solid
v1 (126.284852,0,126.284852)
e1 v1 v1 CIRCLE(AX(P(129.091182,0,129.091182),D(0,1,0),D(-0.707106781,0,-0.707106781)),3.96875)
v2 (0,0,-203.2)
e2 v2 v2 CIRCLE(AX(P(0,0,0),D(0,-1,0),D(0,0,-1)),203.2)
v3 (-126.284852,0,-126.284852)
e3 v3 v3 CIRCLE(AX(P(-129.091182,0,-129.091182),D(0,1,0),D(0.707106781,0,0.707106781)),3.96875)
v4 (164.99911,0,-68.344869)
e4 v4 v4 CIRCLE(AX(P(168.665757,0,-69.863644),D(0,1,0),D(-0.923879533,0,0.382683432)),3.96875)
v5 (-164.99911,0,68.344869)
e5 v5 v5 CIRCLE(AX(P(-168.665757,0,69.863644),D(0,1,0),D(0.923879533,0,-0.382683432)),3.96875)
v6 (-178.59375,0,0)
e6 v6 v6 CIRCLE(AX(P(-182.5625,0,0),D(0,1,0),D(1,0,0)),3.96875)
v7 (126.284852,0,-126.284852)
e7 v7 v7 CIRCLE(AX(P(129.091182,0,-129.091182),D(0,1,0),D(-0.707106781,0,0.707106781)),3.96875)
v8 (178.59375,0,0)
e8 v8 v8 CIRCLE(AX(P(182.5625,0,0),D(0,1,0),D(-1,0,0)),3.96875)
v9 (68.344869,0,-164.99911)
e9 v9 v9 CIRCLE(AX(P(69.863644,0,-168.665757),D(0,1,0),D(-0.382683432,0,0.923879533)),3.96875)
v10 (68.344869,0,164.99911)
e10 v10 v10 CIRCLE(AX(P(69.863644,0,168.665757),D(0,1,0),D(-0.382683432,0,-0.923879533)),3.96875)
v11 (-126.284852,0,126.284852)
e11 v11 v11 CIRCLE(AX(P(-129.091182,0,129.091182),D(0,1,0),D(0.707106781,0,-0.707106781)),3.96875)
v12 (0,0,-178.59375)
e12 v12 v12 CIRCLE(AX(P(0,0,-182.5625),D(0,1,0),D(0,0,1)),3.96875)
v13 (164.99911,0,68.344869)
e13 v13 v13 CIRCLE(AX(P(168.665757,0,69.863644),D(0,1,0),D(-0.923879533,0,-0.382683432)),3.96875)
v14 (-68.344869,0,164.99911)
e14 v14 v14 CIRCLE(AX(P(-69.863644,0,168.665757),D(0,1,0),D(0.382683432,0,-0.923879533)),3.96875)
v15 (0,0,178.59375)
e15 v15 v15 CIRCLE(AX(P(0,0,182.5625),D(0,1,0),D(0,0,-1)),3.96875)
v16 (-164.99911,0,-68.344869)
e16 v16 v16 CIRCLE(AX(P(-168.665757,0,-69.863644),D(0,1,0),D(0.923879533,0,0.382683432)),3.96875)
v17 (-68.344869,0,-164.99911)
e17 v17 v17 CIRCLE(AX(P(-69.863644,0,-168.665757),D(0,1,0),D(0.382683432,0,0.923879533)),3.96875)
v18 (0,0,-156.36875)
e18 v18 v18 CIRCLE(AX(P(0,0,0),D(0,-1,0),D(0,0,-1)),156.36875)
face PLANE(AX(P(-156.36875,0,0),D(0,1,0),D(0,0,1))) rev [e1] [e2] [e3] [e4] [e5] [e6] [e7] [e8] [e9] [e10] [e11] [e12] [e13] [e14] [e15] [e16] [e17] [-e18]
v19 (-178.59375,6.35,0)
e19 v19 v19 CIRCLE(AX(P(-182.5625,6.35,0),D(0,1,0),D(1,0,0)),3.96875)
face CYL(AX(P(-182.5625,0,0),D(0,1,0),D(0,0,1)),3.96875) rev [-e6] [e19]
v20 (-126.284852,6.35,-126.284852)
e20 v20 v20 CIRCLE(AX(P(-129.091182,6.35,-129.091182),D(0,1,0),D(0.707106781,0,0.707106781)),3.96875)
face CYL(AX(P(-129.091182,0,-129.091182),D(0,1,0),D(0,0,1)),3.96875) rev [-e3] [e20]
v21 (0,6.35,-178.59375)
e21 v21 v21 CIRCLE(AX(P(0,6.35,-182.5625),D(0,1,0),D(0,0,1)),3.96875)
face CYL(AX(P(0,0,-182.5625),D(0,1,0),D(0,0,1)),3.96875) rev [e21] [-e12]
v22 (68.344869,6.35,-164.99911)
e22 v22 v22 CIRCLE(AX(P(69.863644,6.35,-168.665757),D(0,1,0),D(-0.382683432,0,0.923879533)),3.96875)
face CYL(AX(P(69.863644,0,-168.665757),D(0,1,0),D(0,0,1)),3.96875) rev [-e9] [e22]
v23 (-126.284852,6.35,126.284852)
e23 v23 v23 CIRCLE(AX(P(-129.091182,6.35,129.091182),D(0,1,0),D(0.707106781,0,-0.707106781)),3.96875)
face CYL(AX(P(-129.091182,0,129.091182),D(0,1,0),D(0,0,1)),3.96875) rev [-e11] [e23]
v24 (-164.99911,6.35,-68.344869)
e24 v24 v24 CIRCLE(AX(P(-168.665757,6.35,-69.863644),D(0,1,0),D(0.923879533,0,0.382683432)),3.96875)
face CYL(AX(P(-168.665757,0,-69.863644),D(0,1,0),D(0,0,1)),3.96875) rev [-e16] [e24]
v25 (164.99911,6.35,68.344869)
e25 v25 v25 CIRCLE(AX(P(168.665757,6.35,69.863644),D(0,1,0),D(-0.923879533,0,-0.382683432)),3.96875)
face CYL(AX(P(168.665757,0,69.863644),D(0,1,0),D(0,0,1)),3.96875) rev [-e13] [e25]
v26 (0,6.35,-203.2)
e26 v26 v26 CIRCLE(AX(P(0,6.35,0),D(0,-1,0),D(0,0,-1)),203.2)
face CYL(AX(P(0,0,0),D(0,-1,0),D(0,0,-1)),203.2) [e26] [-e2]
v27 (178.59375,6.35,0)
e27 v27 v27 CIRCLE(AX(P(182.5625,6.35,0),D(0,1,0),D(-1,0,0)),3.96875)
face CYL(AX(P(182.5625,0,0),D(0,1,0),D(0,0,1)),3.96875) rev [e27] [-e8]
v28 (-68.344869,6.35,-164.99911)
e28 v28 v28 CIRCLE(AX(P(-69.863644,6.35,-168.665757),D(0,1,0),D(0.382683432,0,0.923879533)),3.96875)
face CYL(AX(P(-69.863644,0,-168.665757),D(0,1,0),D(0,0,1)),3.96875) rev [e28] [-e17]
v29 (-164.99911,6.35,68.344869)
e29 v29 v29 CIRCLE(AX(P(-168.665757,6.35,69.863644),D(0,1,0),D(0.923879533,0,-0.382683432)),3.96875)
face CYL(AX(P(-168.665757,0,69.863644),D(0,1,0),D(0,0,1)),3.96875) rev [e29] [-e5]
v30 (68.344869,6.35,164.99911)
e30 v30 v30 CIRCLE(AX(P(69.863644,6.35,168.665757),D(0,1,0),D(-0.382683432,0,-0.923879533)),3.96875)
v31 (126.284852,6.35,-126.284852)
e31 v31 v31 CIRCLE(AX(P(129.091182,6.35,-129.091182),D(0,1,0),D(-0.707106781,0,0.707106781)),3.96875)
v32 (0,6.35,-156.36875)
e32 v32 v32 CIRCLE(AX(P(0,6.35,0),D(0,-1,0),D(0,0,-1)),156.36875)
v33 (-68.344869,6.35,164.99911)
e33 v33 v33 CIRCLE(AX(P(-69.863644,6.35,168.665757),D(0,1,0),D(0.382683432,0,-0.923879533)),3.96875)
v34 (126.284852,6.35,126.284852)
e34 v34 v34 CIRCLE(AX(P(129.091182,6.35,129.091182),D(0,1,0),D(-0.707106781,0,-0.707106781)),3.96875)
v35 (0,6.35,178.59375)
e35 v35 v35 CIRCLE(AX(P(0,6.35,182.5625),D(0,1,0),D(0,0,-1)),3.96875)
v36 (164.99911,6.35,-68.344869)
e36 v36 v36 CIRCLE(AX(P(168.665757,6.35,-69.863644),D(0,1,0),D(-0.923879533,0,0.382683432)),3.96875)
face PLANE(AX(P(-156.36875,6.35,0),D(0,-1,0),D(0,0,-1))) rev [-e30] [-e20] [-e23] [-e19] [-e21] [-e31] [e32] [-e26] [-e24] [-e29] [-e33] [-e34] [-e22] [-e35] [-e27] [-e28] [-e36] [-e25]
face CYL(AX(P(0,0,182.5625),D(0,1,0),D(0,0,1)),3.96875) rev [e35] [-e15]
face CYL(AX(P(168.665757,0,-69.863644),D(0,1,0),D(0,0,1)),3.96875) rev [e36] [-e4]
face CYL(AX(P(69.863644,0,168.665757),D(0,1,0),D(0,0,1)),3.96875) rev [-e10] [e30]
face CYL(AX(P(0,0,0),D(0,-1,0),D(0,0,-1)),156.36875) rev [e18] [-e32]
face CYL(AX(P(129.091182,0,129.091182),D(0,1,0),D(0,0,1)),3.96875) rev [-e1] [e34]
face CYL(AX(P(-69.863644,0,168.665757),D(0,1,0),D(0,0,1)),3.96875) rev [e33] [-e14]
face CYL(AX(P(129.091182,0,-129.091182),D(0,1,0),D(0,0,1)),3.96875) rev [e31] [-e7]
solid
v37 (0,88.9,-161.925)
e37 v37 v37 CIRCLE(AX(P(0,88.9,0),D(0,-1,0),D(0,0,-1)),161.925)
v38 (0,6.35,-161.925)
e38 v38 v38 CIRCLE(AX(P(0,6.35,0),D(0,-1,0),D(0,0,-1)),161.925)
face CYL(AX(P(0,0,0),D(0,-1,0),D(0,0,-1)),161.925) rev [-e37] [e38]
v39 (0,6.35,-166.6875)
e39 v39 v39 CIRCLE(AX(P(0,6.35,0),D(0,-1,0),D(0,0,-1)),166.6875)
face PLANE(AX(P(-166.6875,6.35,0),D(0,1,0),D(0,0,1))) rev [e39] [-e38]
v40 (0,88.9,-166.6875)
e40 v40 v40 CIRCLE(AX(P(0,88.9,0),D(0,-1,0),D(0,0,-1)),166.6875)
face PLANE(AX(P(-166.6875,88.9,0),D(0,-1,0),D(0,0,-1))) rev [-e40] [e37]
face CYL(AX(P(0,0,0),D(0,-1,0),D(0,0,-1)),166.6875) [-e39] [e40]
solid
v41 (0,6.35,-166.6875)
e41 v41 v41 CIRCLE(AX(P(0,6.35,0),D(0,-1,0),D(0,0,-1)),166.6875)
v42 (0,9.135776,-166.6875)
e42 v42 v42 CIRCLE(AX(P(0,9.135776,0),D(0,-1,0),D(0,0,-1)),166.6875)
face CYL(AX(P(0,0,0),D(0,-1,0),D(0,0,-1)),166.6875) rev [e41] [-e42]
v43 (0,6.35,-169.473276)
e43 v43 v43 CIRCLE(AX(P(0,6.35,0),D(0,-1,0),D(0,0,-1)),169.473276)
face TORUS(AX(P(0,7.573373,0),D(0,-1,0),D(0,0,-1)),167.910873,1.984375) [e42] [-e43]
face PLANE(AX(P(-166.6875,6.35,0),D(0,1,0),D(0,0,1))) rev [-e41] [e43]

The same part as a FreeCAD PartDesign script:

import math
import FreeCAD as App
import Part
import Sketcher
Q = App.Units.Quantity

doc = App.newDocument("Part")
params = doc.addObject("Spreadsheet::Sheet", "Params")
for row, (alias, value) in enumerate([
    ("sketch1_height", "0.25 in"),
    ("sketch1_width", "1.84375 in"),
    ("revolution_angle", "360 deg"),
    ("sketch2_diameter", "0.3125 in"),
    ("sketch3_height", "3.25 in"),
    ("sketch3_width", "0.1875 in"),
    ("revolution2_angle", "360 deg"),
    ("sketch4_radius", "0.078125 in"),
    ("revolution3_angle", "360 deg"),
], start=1):
    params.set(f"A{row}", alias)
    params.set(f"B{row}", "=" + value)
    params.setAlias(f"B{row}", alias)

body = doc.addObject("PartDesign::Body", "Body")

sketch1 = body.newObject("Sketcher::SketchObject", "Sketch")
sketch1.AttachmentSupport = (doc.getObject("XY_Plane"), [""])
sketch1.MapMode = "FlatFace"
sketch1.addGeometry(Part.LineSegment(App.Vector(-203, 6, 0), App.Vector(-203, 0, 0)), False)
sketch1.addGeometry(Part.LineSegment(App.Vector(-203, 0, 0), App.Vector(-156, 0, 0)), False)
sketch1.addGeometry(Part.LineSegment(App.Vector(-156, 0, 0), App.Vector(-156, 6, 0)), False)
sketch1.addGeometry(Part.LineSegment(App.Vector(-156, 6, 0), App.Vector(-203, 6, 0)), False)
sketch1.addConstraint(Sketcher.Constraint("Coincident", 0, 2, 1, 1))
sketch1.addConstraint(Sketcher.Constraint("Coincident", 1, 2, 2, 1))
sketch1.addConstraint(Sketcher.Constraint("Coincident", 2, 2, 3, 1))
sketch1.addConstraint(Sketcher.Constraint("Coincident", 3, 2, 0, 1))
sketch1.addConstraint(Sketcher.Constraint("Vertical", 0))
sketch1.addConstraint(Sketcher.Constraint("Horizontal", 1))
sketch1.addConstraint(Sketcher.Constraint("Vertical", 2))
sketch1.addConstraint(Sketcher.Constraint("Horizontal", 3))
sketch1.addConstraint(Sketcher.Constraint("PointOnObject", 0, 2, -1))
sketch1.addConstraint(Sketcher.Constraint("DistanceX", 0, 2, -1, 1, Q("8 in")))
sketch1.addConstraint(Sketcher.Constraint("DistanceY", 0, 2, 0, 1, Q("0.25 in")))
sketch1.addConstraint(Sketcher.Constraint("DistanceX", 1, 1, 1, 2, Q("1.84375 in")))
sketch1.setExpression("Constraints[10]", "Params.sketch1_height")
sketch1.setExpression("Constraints[11]", "Params.sketch1_width")
revolution = body.newObject("PartDesign::Revolution", "Revolution")
revolution.Profile = sketch1
revolution.ReferenceAxis = (sketch1, ["V_Axis"])
revolution.setExpression("Angle", "Params.revolution_angle")

sketch2 = body.newObject("Sketcher::SketchObject", "Sketch001")
sketch2.AttachmentSupport = (doc.getObject("XZ_Plane"), [""])
sketch2.MapMode = "FlatFace"
sketch2.AttachmentOffset = App.Placement(App.Vector(0, 0, -0.25 * 25.4), App.Rotation())
sketch2.addGeometry(Part.Circle(App.Vector(0, -182.6, 0), App.Vector(0, 0, 1), 4), False)
sketch2.addConstraint(Sketcher.Constraint("PointOnObject", 0, 3, -2))
sketch2.addConstraint(Sketcher.Constraint("Diameter", 0, Q("0.3125 in")))
sketch2.addConstraint(Sketcher.Constraint("DistanceY", 0, 3, -1, 1, Q("7.1875 in")))
sketch2.setExpression("Constraints[1]", "Params.sketch2_diameter")
pocket1 = body.newObject("PartDesign::Pocket", "Pocket")
pocket1.Profile = sketch2
pocket1.Type = "ThroughAll"
pocket1.Reversed = True
doc.recompute()

polarpattern = body.newObject("PartDesign::PolarPattern", "PolarPattern")
polarpattern.Originals = [pocket1]
polarpattern.Axis = (doc.getObject("Y_Axis"), [""])
polarpattern.Angle = 360
polarpattern.Occurrences = 16
body.Tip = polarpattern
body2 = doc.addObject("PartDesign::Body", "Body001")

sketch3 = body2.newObject("Sketcher::SketchObject", "Sketch002")
sketch3.AttachmentSupport = (doc.getObject("XY_Plane001"), [""])
sketch3.MapMode = "FlatFace"
sketch3.addGeometry(Part.LineSegment(App.Vector(-166.7, 88.9, 0), App.Vector(-166.7, 6.3, 0)), False)
sketch3.addGeometry(Part.LineSegment(App.Vector(-166.7, 6.3, 0), App.Vector(-161.9, 6.3, 0)), False)
sketch3.addGeometry(Part.LineSegment(App.Vector(-161.9, 6.3, 0), App.Vector(-161.9, 88.9, 0)), False)
sketch3.addGeometry(Part.LineSegment(App.Vector(-161.9, 88.9, 0), App.Vector(-166.7, 88.9, 0)), False)
sketch3.addConstraint(Sketcher.Constraint("Coincident", 0, 2, 1, 1))
sketch3.addConstraint(Sketcher.Constraint("Coincident", 1, 2, 2, 1))
sketch3.addConstraint(Sketcher.Constraint("Coincident", 2, 2, 3, 1))
sketch3.addConstraint(Sketcher.Constraint("Coincident", 3, 2, 0, 1))
sketch3.addConstraint(Sketcher.Constraint("Vertical", 0))
sketch3.addConstraint(Sketcher.Constraint("Horizontal", 1))
sketch3.addConstraint(Sketcher.Constraint("Vertical", 2))
sketch3.addConstraint(Sketcher.Constraint("Horizontal", 3))
sketch3.addConstraint(Sketcher.Constraint("DistanceY", 0, 2, 0, 1, Q("3.25 in")))
sketch3.addConstraint(Sketcher.Constraint("DistanceY", -1, 1, 2, 2, Q("3.5 in")))
sketch3.addConstraint(Sketcher.Constraint("DistanceX", 1, 1, 1, 2, Q("0.1875 in")))
sketch3.addConstraint(Sketcher.Constraint("DistanceX", 0, 2, -1, 1, Q("6.5625 in")))
sketch3.setExpression("Constraints[8]", "Params.sketch3_height")
sketch3.setExpression("Constraints[10]", "Params.sketch3_width")
revolution2 = body2.newObject("PartDesign::Revolution", "Revolution001")
revolution2.Profile = sketch3
revolution2.ReferenceAxis = (sketch3, ["V_Axis"])
revolution2.setExpression("Angle", "Params.revolution2_angle")
body3 = doc.addObject("PartDesign::Body", "Body002")

sketch4 = body3.newObject("Sketcher::SketchObject", "Sketch003")
sketch4.AttachmentSupport = (doc.getObject("XY_Plane002"), [""])
sketch4.MapMode = "FlatFace"
sketch4.addGeometry(Part.LineSegment(App.Vector(-169.5, 6.3, 0), App.Vector(-166.7, 6.3, 0)), False)
sketch4.addGeometry(Part.LineSegment(App.Vector(-166.7, 6.3, 0), App.Vector(-166.7, 9.1, 0)), False)
sketch4.addGeometry(Part.ArcOfCircle(Part.Circle(App.Vector(-167.9, 7.6, 0), App.Vector(0, 0, 1), 2), math.radians(52), math.radians(218)), False)
sketch4.addConstraint(Sketcher.Constraint("Coincident", 0, 2, 1, 1))
sketch4.addConstraint(Sketcher.Constraint("Coincident", 1, 2, 2, 1))
sketch4.addConstraint(Sketcher.Constraint("Coincident", 2, 2, 0, 1))
sketch4.addConstraint(Sketcher.Constraint("Horizontal", 0))
sketch4.addConstraint(Sketcher.Constraint("Vertical", 1))
sketch4.addConstraint(Sketcher.Constraint("Equal", 0, 1))
sketch4.addConstraint(Sketcher.Constraint("Radius", 2, Q("0.078125 in")))
sketch4.addConstraint(Sketcher.Constraint("DistanceY", -1, 1, 0, 2, Q("0.25 in")))
sketch4.addConstraint(Sketcher.Constraint("DistanceX", 0, 2, -1, 1, Q("6.5625 in")))
sketch4.addConstraint(Sketcher.Constraint("DistanceX", 0, 1, 0, 2, 2.785776))
sketch4.setExpression("Constraints[6]", "Params.sketch4_radius")
revolution3 = body3.newObject("PartDesign::Revolution", "Revolution002")
revolution3.Profile = sketch4
revolution3.ReferenceAxis = (sketch4, ["V_Axis"])
revolution3.setExpression("Angle", "Params.revolution3_angle")

doc.recompute()
